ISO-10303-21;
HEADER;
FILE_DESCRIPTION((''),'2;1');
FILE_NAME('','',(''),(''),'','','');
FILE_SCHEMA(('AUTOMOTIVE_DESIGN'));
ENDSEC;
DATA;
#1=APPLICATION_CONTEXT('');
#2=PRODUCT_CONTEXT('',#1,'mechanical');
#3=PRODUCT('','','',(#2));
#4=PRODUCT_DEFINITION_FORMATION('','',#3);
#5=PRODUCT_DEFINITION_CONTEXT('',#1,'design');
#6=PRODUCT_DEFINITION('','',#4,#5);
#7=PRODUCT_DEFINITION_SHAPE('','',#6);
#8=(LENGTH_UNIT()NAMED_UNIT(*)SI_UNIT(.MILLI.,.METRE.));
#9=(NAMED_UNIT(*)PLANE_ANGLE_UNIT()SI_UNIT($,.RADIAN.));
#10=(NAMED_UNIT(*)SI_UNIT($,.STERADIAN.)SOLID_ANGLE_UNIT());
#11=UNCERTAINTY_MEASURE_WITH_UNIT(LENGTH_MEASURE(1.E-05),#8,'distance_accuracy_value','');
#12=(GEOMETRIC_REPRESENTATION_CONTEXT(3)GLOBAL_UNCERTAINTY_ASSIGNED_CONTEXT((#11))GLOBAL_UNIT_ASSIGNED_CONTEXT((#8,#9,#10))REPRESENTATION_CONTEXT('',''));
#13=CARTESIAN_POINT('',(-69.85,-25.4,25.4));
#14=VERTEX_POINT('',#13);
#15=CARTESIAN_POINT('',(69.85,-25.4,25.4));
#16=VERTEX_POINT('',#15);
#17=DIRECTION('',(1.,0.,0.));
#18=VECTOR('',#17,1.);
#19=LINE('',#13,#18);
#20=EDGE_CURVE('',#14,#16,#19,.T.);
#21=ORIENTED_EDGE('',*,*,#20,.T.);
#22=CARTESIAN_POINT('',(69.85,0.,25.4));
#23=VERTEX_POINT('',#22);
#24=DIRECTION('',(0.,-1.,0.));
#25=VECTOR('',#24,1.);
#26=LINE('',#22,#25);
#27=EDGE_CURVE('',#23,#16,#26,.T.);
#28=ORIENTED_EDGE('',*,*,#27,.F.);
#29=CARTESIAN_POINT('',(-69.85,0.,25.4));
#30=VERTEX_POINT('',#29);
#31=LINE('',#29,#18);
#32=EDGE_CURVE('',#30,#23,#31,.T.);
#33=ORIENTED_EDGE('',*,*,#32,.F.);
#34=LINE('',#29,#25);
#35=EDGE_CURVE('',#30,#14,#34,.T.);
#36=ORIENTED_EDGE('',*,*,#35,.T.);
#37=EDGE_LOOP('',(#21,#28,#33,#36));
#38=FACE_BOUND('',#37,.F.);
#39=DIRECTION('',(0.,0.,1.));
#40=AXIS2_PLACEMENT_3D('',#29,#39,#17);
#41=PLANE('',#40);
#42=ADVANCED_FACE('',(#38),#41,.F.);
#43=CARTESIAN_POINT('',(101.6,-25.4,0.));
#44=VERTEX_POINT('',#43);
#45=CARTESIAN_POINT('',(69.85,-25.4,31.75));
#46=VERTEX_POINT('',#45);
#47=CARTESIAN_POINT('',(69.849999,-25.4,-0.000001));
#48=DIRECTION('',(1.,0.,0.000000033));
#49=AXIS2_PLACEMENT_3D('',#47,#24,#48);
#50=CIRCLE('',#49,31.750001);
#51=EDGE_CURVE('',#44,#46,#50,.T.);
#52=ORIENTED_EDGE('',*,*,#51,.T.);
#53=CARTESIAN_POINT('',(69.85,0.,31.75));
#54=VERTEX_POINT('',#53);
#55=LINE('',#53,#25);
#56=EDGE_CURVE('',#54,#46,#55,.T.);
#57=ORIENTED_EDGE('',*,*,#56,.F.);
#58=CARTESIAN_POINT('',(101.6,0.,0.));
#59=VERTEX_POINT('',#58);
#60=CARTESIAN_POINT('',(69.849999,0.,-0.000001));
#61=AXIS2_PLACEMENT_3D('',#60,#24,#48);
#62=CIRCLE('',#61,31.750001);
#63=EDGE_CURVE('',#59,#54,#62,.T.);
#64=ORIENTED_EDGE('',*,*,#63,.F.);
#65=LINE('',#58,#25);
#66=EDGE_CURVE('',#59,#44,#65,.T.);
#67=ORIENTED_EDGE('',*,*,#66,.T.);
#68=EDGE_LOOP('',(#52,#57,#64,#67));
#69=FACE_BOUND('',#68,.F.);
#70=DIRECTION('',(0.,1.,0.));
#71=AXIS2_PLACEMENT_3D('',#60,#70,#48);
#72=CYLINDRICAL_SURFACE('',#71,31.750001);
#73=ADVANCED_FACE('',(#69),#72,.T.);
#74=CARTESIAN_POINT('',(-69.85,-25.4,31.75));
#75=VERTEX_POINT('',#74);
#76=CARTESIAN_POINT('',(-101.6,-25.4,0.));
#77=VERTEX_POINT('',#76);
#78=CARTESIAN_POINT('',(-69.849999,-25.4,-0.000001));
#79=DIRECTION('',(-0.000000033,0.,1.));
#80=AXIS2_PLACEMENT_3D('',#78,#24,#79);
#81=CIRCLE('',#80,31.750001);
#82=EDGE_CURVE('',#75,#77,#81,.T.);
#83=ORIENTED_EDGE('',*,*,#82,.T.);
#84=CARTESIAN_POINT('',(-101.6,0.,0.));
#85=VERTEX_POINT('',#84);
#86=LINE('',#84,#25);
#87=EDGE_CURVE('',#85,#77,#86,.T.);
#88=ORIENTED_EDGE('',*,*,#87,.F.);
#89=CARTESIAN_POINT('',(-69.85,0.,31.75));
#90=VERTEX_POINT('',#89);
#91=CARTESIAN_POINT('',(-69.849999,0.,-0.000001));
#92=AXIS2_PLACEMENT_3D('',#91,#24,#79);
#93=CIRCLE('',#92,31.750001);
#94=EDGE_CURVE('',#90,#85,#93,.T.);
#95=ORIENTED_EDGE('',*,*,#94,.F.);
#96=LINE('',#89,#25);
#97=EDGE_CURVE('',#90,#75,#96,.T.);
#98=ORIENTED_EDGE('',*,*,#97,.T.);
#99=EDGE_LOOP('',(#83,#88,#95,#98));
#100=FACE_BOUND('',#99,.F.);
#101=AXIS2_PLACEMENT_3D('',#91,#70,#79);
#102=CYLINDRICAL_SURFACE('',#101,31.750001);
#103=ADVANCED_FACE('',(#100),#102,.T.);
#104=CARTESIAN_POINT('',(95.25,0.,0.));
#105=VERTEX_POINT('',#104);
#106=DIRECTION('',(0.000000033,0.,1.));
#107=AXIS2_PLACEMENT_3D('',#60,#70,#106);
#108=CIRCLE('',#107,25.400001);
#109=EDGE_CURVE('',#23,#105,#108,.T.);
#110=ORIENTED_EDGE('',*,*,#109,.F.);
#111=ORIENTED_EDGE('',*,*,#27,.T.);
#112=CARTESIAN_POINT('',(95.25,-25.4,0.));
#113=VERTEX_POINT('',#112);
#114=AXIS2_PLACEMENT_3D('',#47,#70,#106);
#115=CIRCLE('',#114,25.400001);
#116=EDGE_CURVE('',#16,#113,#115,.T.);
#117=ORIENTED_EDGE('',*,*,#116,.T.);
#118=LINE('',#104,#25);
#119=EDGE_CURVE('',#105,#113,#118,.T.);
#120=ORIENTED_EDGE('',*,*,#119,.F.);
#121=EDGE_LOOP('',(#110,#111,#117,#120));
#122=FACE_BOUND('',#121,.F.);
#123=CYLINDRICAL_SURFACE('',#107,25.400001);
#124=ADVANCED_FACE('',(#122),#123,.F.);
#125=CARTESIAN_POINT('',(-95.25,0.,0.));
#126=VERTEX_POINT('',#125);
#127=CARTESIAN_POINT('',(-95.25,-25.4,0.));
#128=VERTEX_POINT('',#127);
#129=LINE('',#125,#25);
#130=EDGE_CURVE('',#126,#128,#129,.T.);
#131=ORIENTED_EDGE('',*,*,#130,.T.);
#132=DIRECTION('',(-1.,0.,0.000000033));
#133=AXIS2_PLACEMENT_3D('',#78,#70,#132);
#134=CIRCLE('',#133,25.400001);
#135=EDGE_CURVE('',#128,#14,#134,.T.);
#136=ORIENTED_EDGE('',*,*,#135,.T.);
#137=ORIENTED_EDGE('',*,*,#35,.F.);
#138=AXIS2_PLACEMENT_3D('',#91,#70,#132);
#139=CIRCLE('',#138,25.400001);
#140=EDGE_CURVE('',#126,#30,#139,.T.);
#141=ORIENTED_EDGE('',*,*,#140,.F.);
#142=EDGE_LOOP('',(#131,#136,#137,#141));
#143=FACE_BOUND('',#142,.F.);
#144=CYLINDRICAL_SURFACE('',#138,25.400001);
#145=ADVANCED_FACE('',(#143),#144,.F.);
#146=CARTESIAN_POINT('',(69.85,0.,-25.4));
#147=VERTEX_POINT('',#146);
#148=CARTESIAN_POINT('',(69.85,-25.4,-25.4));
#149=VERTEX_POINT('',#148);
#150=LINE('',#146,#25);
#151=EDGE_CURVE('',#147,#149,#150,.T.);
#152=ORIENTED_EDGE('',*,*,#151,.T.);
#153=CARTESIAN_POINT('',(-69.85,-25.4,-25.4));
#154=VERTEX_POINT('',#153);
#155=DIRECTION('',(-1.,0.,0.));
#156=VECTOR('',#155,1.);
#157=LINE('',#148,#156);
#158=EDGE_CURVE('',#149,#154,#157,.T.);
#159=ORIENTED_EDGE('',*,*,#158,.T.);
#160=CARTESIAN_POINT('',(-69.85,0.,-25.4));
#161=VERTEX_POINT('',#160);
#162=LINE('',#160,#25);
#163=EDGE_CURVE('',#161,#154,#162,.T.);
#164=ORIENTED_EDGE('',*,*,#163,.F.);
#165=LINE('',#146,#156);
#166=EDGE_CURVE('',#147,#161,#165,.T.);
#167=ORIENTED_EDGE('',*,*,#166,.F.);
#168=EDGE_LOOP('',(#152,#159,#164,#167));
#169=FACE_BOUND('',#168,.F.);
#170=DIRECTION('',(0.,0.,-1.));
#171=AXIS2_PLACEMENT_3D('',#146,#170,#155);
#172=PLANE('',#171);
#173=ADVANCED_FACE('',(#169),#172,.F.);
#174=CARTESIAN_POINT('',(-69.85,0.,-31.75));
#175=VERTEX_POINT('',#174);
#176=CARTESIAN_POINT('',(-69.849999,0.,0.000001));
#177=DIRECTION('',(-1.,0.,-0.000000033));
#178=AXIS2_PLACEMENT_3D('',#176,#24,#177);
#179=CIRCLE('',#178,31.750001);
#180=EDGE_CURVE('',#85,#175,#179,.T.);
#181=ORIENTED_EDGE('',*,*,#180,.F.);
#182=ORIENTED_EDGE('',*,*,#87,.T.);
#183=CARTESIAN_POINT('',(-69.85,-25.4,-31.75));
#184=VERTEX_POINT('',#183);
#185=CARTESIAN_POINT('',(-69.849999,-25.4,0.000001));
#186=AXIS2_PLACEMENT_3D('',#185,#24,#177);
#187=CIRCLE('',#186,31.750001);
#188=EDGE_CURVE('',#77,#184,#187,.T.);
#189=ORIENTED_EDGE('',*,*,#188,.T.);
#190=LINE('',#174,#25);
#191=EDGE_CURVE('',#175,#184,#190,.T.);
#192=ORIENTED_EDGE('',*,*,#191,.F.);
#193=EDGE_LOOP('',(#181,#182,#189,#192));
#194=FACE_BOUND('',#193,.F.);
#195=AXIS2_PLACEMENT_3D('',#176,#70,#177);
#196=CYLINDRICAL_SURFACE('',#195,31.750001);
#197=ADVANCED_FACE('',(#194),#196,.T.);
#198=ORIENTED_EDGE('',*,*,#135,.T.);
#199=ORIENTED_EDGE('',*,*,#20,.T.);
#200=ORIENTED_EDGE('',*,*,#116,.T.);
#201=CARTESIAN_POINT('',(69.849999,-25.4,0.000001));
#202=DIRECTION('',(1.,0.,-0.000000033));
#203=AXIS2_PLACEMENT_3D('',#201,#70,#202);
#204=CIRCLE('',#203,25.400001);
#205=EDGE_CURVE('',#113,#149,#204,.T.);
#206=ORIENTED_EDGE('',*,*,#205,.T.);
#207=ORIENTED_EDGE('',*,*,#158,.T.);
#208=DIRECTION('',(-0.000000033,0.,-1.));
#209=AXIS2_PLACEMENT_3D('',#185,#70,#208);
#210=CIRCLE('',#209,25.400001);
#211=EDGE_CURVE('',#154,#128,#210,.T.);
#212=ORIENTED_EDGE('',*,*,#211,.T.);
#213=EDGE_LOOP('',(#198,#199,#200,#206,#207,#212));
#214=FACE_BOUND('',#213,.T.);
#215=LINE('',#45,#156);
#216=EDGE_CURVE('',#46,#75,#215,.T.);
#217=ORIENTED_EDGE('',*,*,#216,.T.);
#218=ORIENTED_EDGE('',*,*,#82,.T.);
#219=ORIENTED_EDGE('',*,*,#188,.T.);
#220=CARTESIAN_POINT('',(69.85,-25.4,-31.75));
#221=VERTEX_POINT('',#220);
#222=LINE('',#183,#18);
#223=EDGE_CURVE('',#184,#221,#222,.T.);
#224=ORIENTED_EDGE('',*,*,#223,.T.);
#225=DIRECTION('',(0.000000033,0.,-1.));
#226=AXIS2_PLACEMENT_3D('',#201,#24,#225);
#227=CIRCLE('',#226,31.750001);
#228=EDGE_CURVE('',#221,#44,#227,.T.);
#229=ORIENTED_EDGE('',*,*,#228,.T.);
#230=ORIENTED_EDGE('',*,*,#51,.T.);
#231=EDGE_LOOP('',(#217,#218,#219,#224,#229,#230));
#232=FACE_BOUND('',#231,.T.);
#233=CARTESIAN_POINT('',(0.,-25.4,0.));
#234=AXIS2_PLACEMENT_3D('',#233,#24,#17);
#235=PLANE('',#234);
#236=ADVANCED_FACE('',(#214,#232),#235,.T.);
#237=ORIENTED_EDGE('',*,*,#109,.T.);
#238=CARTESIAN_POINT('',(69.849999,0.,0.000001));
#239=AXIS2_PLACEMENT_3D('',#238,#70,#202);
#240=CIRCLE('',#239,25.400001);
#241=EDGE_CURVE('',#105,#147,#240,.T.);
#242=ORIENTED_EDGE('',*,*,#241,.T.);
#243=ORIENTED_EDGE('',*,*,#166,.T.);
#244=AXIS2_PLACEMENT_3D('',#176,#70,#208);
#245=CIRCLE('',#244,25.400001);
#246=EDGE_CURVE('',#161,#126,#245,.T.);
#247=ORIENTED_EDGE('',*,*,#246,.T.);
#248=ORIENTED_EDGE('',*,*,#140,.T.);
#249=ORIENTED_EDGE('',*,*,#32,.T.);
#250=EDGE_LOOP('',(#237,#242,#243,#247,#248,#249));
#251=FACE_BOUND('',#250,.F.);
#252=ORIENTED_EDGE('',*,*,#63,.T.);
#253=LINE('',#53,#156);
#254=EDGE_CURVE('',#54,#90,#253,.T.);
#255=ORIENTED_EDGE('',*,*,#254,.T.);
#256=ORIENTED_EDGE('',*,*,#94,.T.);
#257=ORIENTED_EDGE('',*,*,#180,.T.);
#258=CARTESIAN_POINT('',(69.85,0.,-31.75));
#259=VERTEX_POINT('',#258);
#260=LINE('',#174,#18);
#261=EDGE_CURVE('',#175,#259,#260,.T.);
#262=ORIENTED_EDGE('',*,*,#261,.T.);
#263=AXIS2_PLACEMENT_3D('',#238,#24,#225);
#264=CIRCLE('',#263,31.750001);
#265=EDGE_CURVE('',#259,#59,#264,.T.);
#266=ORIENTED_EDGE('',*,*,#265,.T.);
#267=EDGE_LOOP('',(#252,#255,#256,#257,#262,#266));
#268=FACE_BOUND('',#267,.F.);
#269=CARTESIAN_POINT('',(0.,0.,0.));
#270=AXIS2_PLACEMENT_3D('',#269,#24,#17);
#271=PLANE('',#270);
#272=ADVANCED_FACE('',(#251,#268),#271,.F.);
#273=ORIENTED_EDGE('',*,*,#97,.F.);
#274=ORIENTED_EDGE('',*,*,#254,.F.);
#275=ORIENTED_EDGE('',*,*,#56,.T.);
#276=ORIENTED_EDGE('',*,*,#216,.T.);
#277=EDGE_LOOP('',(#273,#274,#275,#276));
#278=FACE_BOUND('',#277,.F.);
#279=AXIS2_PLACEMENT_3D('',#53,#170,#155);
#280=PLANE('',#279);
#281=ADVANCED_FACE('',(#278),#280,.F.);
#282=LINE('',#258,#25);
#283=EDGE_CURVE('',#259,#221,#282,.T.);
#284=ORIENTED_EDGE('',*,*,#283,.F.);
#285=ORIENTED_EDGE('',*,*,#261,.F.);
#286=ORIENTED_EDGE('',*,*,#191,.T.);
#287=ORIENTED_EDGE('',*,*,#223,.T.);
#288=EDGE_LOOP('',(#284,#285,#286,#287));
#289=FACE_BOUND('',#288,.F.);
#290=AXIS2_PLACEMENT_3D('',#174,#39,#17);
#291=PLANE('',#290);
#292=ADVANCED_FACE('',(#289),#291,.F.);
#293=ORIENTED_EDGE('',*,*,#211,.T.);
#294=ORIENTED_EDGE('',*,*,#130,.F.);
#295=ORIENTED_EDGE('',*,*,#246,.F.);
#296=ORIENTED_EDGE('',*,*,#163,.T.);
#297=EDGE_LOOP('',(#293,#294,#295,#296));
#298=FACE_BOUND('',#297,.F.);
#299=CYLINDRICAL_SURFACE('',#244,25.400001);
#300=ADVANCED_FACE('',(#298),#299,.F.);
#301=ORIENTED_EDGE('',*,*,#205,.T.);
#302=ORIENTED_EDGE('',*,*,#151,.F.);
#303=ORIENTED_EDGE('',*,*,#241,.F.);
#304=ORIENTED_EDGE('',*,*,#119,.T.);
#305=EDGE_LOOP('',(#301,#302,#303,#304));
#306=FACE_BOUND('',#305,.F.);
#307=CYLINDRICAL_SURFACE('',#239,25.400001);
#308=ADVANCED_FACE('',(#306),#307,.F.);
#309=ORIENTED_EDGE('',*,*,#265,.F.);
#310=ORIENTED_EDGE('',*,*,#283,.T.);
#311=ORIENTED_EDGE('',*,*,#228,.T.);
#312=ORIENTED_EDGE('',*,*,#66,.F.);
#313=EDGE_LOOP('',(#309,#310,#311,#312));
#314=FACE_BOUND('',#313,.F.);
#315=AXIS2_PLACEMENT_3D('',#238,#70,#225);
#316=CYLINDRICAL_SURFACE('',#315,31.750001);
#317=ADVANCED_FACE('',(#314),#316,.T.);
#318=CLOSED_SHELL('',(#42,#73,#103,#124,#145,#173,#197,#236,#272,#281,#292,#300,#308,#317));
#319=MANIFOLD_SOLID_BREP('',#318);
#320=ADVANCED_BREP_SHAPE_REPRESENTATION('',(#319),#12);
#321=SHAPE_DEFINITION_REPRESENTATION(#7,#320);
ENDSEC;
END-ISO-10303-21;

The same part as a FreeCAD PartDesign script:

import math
import FreeCAD as App
import Part
import Sketcher

V = App.Vector
Q = App.Units.Quantity

doc = App.newDocument("Part")
body = doc.addObject("PartDesign::Body", "Body")

# Sketch on XZ plane
sketch1 = doc.addObject("Sketcher::SketchObject", "Sketch")
body.addObject(sketch1)
sketch1.AttachmentSupport = (doc.XZ_Plane, [""])
sketch1.MapMode = "FlatFace"
sketch1.addGeometry([
    Part.LineSegment(V(69.85, 31.75, 0), V(-69.85, 31.75, 0)),  # 0
    Part.ArcOfCircle(Part.Circle(V(-69.849999, -0.000001, 0), V(0, 0, 1), 31.750001), math.radians(90.000002), math.radians(179.999998)),  # 1
    Part.ArcOfCircle(Part.Circle(V(-69.849999, 0.000001, 0), V(0, 0, 1), 31.750001), math.radians(-179.999998), math.radians(-90.000002)),  # 2
    Part.LineSegment(V(-69.85, -31.75, 0), V(69.85, -31.75, 0)),  # 3
    Part.ArcOfCircle(Part.Circle(V(69.849999, 0.000001, 0), V(0, 0, 1), 31.750001), math.radians(-89.999998), math.radians(-0.000002)),  # 4
    Part.ArcOfCircle(Part.Circle(V(69.849999, -0.000001, 0), V(0, 0, 1), 31.750001), math.radians(0.000002), math.radians(89.999998)),  # 5
    Part.ArcOfCircle(Part.Circle(V(-69.849999, -0.000001, 0), V(0, 0, 1), 25.400001), math.radians(90.000002), math.radians(179.999998)),  # 6
    Part.LineSegment(V(-69.85, 25.4, 0), V(69.85, 25.4, 0)),  # 7
    Part.ArcOfCircle(Part.Circle(V(69.849999, -0.000001, 0), V(0, 0, 1), 25.400001), math.radians(0.000002), math.radians(89.999998)),  # 8
    Part.ArcOfCircle(Part.Circle(V(69.849999, 0.000001, 0), V(0, 0, 1), 25.400001), math.radians(-89.999998), math.radians(-0.000002)),  # 9
    Part.LineSegment(V(69.85, -25.4, 0), V(-69.85, -25.4, 0)),  # 10
    Part.ArcOfCircle(Part.Circle(V(-69.849999, 0.000001, 0), V(0, 0, 1), 25.400001), math.radians(-179.999998), math.radians(-90.000002)),  # 11
], False)
sketch1.addConstraint([
    Sketcher.Constraint("Tangent", 0, 2, 1, 1),
    Sketcher.Constraint("Tangent", 1, 2, 2, 1),
    Sketcher.Constraint("Tangent", 2, 2, 3, 1),
    Sketcher.Constraint("Tangent", 3, 2, 4, 1),
    Sketcher.Constraint("Tangent", 4, 2, 5, 1),
    Sketcher.Constraint("Tangent", 5, 2, 0, 1),
    Sketcher.Constraint("Tangent", 6, 1, 7, 1),
    Sketcher.Constraint("Tangent", 7, 2, 8, 2),
    Sketcher.Constraint("Tangent", 8, 1, 9, 2),
    Sketcher.Constraint("Tangent", 9, 1, 10, 1),
    Sketcher.Constraint("Tangent", 10, 2, 11, 2),
    Sketcher.Constraint("Tangent", 11, 1, 6, 2),
    Sketcher.Constraint("Horizontal", 0),
    Sketcher.Constraint("Horizontal", 3),
    Sketcher.Constraint("Horizontal", 7),
    Sketcher.Constraint("Horizontal", 10),
    Sketcher.Constraint("Coincident", 6, 3, 1, 3),
    Sketcher.Constraint("Coincident", 8, 3, 4, 3),
    Sketcher.Constraint("Equal", 1, 2),
    Sketcher.Constraint("Equal", 2, 4),
    Sketcher.Constraint("Equal", 8, 9),
    Sketcher.Constraint("Symmetric", 1, 3, 4, 3, -1, 1),
    Sketcher.Constraint("PointOnObject", 1, 2, -1),
    Sketcher.Constraint("PointOnObject", 4, 2, -1),
    Sketcher.Constraint("PointOnObject", 8, 1, -1),
    Sketcher.Constraint("PointOnObject", 11, 1, -1),
    Sketcher.Constraint("Radius", 6, Q("1 in")),
    Sketcher.Constraint("Radius", 1, Q("1.25 in")),
    Sketcher.Constraint("DistanceX", 0, 2, 0, 1, Q("5.5 in")),
])
pad1 = doc.addObject("PartDesign::Pad", "Pad")
body.addObject(pad1)
pad1.Profile = sketch1
pad1.Length = Q("1 in")

doc.recompute()
